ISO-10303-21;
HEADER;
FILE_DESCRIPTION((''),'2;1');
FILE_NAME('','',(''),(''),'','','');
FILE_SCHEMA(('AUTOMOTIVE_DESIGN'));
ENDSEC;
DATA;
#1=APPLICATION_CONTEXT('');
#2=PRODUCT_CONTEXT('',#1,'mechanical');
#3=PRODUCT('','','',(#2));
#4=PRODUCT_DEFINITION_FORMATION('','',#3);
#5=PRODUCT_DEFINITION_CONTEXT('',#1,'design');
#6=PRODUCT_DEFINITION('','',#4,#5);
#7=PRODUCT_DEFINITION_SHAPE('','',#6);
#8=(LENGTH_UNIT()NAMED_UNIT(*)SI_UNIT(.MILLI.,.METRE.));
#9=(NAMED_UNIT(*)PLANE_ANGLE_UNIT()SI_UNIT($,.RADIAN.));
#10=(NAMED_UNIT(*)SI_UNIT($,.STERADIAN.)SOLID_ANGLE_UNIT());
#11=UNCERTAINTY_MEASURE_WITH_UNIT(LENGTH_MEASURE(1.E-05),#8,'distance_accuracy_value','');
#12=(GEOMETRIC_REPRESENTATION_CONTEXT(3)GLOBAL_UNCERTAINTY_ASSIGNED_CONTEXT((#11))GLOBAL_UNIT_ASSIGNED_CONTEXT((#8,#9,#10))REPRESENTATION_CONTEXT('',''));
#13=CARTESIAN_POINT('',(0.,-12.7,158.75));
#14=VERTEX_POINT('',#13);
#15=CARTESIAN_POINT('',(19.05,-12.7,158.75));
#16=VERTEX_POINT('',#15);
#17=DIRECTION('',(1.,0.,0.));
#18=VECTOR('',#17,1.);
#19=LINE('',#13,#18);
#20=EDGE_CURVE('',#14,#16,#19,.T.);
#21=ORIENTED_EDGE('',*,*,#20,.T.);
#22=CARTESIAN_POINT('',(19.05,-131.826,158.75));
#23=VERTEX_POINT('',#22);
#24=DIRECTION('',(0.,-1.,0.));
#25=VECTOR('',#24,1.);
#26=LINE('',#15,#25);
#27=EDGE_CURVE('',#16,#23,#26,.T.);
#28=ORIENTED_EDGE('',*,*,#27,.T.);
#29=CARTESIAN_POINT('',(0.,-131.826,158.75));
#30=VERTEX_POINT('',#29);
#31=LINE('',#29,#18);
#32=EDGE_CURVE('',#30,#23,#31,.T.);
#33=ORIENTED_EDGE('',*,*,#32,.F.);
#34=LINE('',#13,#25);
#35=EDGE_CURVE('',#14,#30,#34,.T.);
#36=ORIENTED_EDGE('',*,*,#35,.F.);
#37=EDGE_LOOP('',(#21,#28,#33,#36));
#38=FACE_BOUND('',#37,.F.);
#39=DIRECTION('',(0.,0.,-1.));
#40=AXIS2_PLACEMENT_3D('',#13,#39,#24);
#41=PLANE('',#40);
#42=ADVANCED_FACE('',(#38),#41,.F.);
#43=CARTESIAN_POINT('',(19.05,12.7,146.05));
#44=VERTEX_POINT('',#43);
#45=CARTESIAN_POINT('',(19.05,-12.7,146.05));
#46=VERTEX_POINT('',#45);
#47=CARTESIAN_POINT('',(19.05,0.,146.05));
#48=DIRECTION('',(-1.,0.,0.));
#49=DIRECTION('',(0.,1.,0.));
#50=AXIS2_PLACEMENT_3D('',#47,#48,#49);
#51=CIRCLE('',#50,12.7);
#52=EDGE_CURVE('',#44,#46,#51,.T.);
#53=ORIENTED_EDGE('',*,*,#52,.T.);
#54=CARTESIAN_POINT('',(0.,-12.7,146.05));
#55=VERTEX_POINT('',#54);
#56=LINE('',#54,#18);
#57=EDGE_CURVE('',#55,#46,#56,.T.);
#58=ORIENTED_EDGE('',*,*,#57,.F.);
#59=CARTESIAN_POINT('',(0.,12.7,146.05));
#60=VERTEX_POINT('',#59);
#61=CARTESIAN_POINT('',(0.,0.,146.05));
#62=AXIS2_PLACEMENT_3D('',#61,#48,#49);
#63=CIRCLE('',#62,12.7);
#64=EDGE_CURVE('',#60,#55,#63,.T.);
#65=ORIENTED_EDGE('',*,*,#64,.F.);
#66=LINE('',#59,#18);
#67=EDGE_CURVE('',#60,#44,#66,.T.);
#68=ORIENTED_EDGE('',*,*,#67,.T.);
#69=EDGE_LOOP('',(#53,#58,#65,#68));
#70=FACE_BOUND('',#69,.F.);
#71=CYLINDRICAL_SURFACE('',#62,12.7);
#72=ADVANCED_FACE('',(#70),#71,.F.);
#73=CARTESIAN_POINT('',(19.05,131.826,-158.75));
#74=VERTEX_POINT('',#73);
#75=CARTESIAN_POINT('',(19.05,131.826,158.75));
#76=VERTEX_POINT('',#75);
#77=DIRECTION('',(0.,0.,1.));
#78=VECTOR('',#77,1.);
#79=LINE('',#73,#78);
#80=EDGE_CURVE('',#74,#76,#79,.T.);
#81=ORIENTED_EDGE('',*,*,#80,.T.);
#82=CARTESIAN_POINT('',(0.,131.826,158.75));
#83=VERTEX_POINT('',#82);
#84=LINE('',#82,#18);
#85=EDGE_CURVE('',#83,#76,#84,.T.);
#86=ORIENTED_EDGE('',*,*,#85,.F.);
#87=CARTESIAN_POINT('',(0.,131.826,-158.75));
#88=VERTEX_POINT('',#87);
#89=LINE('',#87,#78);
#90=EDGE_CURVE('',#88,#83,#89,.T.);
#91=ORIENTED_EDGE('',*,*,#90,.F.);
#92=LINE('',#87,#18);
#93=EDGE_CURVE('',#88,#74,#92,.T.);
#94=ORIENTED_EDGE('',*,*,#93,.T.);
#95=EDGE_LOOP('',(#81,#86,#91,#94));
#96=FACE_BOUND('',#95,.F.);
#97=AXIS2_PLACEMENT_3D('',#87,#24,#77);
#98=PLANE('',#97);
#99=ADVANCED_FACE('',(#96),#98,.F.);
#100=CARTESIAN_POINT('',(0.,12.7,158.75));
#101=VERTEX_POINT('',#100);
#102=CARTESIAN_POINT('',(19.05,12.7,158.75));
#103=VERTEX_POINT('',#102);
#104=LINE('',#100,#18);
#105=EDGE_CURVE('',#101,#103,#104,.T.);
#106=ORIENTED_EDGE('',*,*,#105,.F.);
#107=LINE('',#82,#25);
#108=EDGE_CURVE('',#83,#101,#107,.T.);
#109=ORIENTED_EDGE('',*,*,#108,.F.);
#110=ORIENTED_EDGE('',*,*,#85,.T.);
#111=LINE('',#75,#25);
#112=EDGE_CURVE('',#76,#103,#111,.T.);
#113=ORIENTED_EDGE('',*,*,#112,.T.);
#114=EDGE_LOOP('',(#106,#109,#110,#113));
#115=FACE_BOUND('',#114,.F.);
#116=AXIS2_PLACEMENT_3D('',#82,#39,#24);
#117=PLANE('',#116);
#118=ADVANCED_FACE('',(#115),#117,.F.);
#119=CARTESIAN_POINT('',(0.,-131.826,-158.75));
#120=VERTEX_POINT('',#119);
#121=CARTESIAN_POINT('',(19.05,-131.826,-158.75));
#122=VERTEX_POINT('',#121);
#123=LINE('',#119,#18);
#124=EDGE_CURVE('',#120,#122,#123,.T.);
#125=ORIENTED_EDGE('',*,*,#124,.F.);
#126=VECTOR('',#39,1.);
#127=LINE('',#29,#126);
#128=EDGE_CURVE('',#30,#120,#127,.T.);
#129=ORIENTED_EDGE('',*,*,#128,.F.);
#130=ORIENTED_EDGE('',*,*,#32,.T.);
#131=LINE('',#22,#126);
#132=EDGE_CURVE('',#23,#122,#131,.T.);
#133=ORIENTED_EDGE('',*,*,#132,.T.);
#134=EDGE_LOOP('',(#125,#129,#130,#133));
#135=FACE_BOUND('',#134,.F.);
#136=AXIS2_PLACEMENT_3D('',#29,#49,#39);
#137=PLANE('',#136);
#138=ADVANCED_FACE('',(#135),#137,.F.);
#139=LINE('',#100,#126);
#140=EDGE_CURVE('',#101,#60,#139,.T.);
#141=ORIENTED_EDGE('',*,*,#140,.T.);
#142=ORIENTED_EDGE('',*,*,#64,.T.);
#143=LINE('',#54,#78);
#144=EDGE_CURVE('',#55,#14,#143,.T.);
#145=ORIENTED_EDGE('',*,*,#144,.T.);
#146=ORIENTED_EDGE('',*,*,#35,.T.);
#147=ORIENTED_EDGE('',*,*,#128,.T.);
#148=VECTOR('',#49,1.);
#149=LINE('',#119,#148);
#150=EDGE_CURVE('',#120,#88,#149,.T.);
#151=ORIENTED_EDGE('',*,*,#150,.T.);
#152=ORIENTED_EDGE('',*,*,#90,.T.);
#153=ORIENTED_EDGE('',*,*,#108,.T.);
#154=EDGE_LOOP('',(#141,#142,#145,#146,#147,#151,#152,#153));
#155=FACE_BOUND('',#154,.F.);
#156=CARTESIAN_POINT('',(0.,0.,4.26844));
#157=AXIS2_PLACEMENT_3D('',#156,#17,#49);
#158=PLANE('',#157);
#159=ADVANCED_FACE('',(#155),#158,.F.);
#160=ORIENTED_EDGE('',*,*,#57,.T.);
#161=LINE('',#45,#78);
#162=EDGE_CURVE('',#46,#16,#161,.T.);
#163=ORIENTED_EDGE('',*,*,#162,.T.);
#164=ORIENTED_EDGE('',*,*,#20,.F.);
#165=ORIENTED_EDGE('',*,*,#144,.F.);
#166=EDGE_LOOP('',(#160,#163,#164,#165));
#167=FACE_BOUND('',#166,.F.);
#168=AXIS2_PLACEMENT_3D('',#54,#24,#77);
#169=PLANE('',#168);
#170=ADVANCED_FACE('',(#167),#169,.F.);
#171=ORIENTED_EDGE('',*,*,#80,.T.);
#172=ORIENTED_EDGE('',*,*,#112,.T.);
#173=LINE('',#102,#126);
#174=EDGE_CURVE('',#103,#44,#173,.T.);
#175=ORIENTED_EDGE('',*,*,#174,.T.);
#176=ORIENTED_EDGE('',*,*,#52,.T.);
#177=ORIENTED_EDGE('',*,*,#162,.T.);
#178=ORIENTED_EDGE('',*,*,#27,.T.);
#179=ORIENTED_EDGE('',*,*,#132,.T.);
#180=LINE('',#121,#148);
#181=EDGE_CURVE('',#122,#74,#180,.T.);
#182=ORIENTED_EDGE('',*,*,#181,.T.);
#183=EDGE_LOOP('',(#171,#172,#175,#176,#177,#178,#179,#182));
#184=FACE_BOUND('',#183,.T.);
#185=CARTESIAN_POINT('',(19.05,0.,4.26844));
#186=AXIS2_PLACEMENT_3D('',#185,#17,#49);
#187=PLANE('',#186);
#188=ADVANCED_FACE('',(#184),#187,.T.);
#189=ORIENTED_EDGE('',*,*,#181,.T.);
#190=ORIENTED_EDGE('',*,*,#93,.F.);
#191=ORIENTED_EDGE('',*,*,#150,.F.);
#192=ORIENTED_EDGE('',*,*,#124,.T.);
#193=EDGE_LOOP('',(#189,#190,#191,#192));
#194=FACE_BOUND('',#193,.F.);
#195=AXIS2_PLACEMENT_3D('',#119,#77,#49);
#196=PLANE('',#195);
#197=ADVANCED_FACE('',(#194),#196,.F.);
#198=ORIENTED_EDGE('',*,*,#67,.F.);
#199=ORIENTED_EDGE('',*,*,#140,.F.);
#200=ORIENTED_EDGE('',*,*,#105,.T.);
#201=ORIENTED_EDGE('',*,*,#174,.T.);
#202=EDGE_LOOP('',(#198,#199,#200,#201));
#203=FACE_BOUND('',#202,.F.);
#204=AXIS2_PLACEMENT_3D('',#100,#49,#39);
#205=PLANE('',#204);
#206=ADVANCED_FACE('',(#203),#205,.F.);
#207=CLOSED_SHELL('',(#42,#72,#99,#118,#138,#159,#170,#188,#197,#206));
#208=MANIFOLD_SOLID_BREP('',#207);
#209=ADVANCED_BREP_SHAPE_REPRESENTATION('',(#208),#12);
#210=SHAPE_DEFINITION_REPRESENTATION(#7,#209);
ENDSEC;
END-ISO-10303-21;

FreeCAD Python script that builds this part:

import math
import FreeCAD as App
import Part
import Sketcher

V = App.Vector
Q = App.Units.Quantity

doc = App.newDocument("Part")
body = doc.addObject("PartDesign::Body", "Body")

sketch1 = doc.addObject("Sketcher::SketchObject", "Sketch")
body.addObject(sketch1)
sketch1.AttachmentSupport = (doc.YZ_Plane, [""])
sketch1.MapMode = "FlatFace"
sketch1.addGeometry([
    Part.LineSegment(V(132, -159, 0), V(132, 159, 0)),
    Part.LineSegment(V(132, 159, 0), V(13, 159, 0)),
    Part.LineSegment(V(13, 159, 0), V(13, 146, 0)),
    Part.ArcOfCircle(Part.Circle(V(0, 146, 0), V(0, 0, 1), 13), math.radians(180), math.radians(360)),
    Part.LineSegment(V(-13, 146, 0), V(-13, 159, 0)),
    Part.LineSegment(V(-13, 159, 0), V(-132, 159, 0)),
    Part.LineSegment(V(-132, 159, 0), V(-132, -159, 0)),
    Part.LineSegment(V(-132, -159, 0), V(132, -159, 0)),
], False)
sketch1.addConstraint([
    Sketcher.Constraint("Coincident", 0, 2, 1, 1),
    Sketcher.Constraint("Coincident", 1, 2, 2, 1),
    Sketcher.Constraint("Tangent", 2, 2, 3, 2),
    Sketcher.Constraint("Tangent", 3, 1, 4, 1),
    Sketcher.Constraint("Coincident", 4, 2, 5, 1),
    Sketcher.Constraint("Coincident", 5, 2, 6, 1),
    Sketcher.Constraint("Coincident", 6, 2, 7, 1),
    Sketcher.Constraint("Coincident", 7, 2, 0, 1),
    Sketcher.Constraint("Vertical", 0),
    Sketcher.Constraint("Horizontal", 1),
    Sketcher.Constraint("Vertical", 2),
    Sketcher.Constraint("Vertical", 4),
    Sketcher.Constraint("Horizontal", 5),
    Sketcher.Constraint("Vertical", 6),
    Sketcher.Constraint("Horizontal", 7),
    Sketcher.Constraint("Symmetric", 0, 2, 6, 2, -1, 1),
    Sketcher.Constraint("Symmetric", 1, 2, 4, 2, -2),
    Sketcher.Constraint("Radius", 3, Q("0.5 in")),
    Sketcher.Constraint("DistanceY", 0, 1, 0, 2, Q("12.5 in")),
    Sketcher.Constraint("DistanceY", 2, 2, 2, 1, Q("0.5 in")),
    Sketcher.Constraint("DistanceX", 1, 2, 1, 1, Q("4.69 in")),
])
pad1 = doc.addObject("PartDesign::Pad", "Pad")
body.addObject(pad1)
pad1.Profile = sketch1
pad1.Length = Q("0.75 in")

doc.recompute()
